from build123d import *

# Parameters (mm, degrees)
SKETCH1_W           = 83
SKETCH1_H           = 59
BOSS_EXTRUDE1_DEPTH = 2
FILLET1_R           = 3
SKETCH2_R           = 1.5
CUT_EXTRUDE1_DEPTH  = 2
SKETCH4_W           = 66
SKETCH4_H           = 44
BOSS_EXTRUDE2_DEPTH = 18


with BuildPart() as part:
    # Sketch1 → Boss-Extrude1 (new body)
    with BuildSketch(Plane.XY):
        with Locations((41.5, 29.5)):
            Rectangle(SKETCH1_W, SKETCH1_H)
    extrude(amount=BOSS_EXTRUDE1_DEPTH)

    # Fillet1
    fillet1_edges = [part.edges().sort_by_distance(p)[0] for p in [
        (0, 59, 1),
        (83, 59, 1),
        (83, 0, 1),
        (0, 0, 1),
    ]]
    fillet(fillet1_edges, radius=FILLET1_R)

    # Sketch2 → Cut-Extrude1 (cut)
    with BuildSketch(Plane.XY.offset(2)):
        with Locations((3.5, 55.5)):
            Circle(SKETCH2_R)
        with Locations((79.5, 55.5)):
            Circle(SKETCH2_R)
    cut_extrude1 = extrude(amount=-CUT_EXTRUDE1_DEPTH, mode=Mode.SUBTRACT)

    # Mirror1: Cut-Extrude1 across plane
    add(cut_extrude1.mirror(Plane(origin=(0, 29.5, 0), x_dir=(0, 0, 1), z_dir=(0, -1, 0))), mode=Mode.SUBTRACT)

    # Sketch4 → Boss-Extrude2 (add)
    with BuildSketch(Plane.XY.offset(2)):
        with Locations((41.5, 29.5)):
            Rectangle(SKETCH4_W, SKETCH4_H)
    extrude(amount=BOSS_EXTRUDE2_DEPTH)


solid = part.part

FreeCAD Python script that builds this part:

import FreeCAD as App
import Part
import Sketcher
from FreeCAD import Vector
Q = App.Units.Quantity


def edges_at(feature, points):
    """Names of the edges that pass closest to the given points."""
    edges = feature.Shape.Edges
    near = lambda p: min(range(len(edges)), key=lambda i: edges[i].distToShape(Part.Vertex(*p))[0])
    return sorted({f"Edge{near(p) + 1}" for p in points})


def add_polygon(sketch, points):
    """Adds a closed chain of lines whose ends are joined by coincident constraints."""
    first, n = sketch.GeometryCount, len(points)
    for a, b in zip(points, points[1:] + points[:1]):
        sketch.addGeometry(Part.LineSegment(App.Vector(*a, 0), App.Vector(*b, 0)), False)
    for i in range(n):
        sketch.addConstraint(Sketcher.Constraint("Coincident", first + i, 2, first + (i + 1) % n, 1))

doc = App.newDocument("Part")
params = doc.addObject("Spreadsheet::Sheet", "Params")
for row, (alias, value) in enumerate([
    ("sketch1_width", "83 mm"),
    ("sketch1_height", "59 mm"),
    ("pad1_length", "2 mm"),
    ("fillet_radius", "3 mm"),
    ("sketch2_diameter", "3 mm"),
    ("pocket1_length", "2 mm"),
    ("sketch3_width", "66 mm"),
    ("sketch3_height", "44 mm"),
    ("pad2_length", "18 mm"),
], start=1):
    params.set(f"A{row}", alias)
    params.set(f"B{row}", "=" + value)
    params.setAlias(f"B{row}", alias)

body = doc.addObject("PartDesign::Body", "Body")

sketch1 = doc.addObject("Sketcher::SketchObject", "Sketch")
body.addObject(sketch1)
sketch1.AttachmentSupport = (doc.XY_Plane, [""])
sketch1.MapMode = "FlatFace"
add_polygon(sketch1, [(0, 59), (0, 0), (83, 0), (83, 59)])
sketch1.addConstraint([
    Sketcher.Constraint("Vertical", 0),
    Sketcher.Constraint("Horizontal", 1),
    Sketcher.Constraint("Vertical", 2),
    Sketcher.Constraint("Horizontal", 3),
    Sketcher.Constraint("Coincident", 0, 2, -1, 1),
    Sketcher.Constraint("DistanceX", 1, 1, 1, 2, Q("83 mm")),
    Sketcher.Constraint("DistanceY", 0, 2, 0, 1, Q("59 mm")),
])
sketch1.setExpression("Constraints[9]", "Params.sketch1_width")
sketch1.setExpression("Constraints[10]", "Params.sketch1_height")
pad1 = doc.addObject("PartDesign::Pad", "Pad")
body.addObject(pad1)
pad1.Profile = sketch1
pad1.setExpression("Length", "Params.pad1_length")
doc.recompute()

fillet = doc.addObject("PartDesign::Fillet", "Fillet")
body.addObject(fillet)
fillet.Base = (pad1, edges_at(pad1, [
    (0, 59, 1),
    (83, 59, 1),
    (83, 0, 1),
    (0, 0, 1),
]))
fillet.setExpression("Radius", "Params.fillet_radius")

sketch2 = doc.addObject("Sketcher::SketchObject", "Sketch001")
body.addObject(sketch2)
sketch2.AttachmentSupport = (doc.XY_Plane, [""])
sketch2.MapMode = "FlatFace"
sketch2.AttachmentOffset = App.Placement(Vector(0, 0, 2), App.Rotation())
sketch2.addGeometry([
    Part.Circle(Vector(3.5, 55.5, 0), Vector(0, 0, 1), 1.5),
    Part.Circle(Vector(79.5, 55.5, 0), Vector(0, 0, 1), 1.5),
], False)
sketch2.addConstraint([
    Sketcher.Constraint("Equal", 0, 1),
    Sketcher.Constraint("Horizontal", 0, 3, 1, 3),
    Sketcher.Constraint("Diameter", 0, Q("3 mm")),
    Sketcher.Constraint("DistanceX", 0, 3, 1, 3, Q("76 mm")),
    Sketcher.Constraint("DistanceX", -1, 1, 0, 3, Q("3.5 mm")),
    Sketcher.Constraint("DistanceY", -1, 1, 0, 3, Q("55.5 mm")),
])
sketch2.setExpression("Constraints[2]", "Params.sketch2_diameter")
pocket1 = doc.addObject("PartDesign::Pocket", "Pocket")
body.addObject(pocket1)
pocket1.Profile = sketch2
pocket1.setExpression("Length", "Params.pocket1_length")
doc.recompute()

datumplane = doc.addObject("PartDesign::Plane", "DatumPlane")
body.addObject(datumplane)
datumplane.AttachmentSupport = (doc.XZ_Plane, [""])
datumplane.MapMode = "FlatFace"
datumplane.AttachmentOffset = App.Placement(Vector(0, 0, -29.5), App.Rotation())
mirrored = doc.addObject("PartDesign::Mirrored", "Mirrored")
body.addObject(mirrored)
mirrored.Originals = [pocket1]
mirrored.MirrorPlane = (datumplane, [""])
body.Tip = mirrored

sketch3 = doc.addObject("Sketcher::SketchObject", "Sketch002")
body.addObject(sketch3)
sketch3.AttachmentSupport = (doc.XY_Plane, [""])
sketch3.MapMode = "FlatFace"
sketch3.AttachmentOffset = App.Placement(Vector(0, 0, 2), App.Rotation())
add_polygon(sketch3, [(8.5, 51.5), (8.5, 7.5), (74.5, 7.5), (74.5, 51.5)])
sketch3.addConstraint([
    Sketcher.Constraint("Vertical", 0),
    Sketcher.Constraint("Horizontal", 1),
    Sketcher.Constraint("Vertical", 2),
    Sketcher.Constraint("Horizontal", 3),
    Sketcher.Constraint("DistanceX", 1, 1, 1, 2, Q("66 mm")),
    Sketcher.Constraint("DistanceY", 0, 2, 0, 1, Q("44 mm")),
    Sketcher.Constraint("DistanceX", -1, 1, 0, 2, Q("8.5 mm")),
    Sketcher.Constraint("DistanceY", -1, 1, 0, 2, Q("7.5 mm")),
])
sketch3.setExpression("Constraints[8]", "Params.sketch3_width")
sketch3.setExpression("Constraints[9]", "Params.sketch3_height")
pad2 = doc.addObject("PartDesign::Pad", "Pad001")
body.addObject(pad2)
pad2.Profile = sketch3
pad2.setExpression("Length", "Params.pad2_length")

doc.recompute()
